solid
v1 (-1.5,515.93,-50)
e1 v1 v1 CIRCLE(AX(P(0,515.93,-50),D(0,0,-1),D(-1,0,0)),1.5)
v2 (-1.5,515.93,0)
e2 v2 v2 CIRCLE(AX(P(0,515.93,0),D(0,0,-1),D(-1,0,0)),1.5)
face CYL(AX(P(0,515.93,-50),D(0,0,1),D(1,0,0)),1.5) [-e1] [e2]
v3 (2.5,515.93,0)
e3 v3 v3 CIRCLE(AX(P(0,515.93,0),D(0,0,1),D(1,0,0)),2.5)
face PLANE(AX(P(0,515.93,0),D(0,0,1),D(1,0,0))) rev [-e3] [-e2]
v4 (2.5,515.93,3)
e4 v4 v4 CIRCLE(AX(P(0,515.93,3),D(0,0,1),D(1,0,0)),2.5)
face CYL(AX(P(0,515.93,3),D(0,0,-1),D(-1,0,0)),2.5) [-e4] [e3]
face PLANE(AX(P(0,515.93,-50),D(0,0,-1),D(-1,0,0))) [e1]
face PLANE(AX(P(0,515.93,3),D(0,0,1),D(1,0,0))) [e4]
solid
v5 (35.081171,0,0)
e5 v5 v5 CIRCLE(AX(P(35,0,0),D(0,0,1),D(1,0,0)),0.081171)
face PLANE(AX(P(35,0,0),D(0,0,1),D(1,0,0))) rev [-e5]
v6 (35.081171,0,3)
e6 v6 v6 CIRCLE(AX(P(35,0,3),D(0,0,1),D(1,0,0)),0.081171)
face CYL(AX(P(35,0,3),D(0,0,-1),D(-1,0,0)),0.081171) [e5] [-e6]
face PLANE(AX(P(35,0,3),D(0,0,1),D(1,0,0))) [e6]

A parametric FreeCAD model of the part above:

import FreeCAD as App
import Part
import Sketcher
from FreeCAD import Vector
Q = App.Units.Quantity

doc = App.newDocument("Part")
body = doc.addObject("PartDesign::Body", "Body")

# Sketch on XY plane
sketch1 = body.newObject("Sketcher::SketchObject", "Sketch")
sketch1.AttachmentSupport = (doc.getObject("XY_Plane"), [""])
sketch1.MapMode = "FlatFace"
sketch1.addGeometry(Part.Circle(Vector(35, 0, 0), Vector(0, 0, 1), 0.08), False)
sketch1.addConstraint([
    Sketcher.Constraint("PointOnObject", 0, 3, -1),
    Sketcher.Constraint("DistanceX", -1, 1, 0, 3, Q("35 mm")),
    Sketcher.Constraint("Diameter", 0, Q("0.162342 mm")),
])
pad1 = body.newObject("PartDesign::Pad", "Pad")
pad1.Profile = sketch1
pad1.Length = 3
body2 = doc.addObject("PartDesign::Body", "Body001")

# Sketch on XY plane
sketch2 = body2.newObject("Sketcher::SketchObject", "Sketch001")
sketch2.AttachmentSupport = (doc.getObject("XY_Plane001"), [""])
sketch2.MapMode = "FlatFace"
sketch2.addGeometry(Part.Circle(Vector(0, 515.9, 0), Vector(0, 0, 1), 2.5), False)
sketch2.addConstraint([
    Sketcher.Constraint("PointOnObject", 0, 3, -2),
    Sketcher.Constraint("Diameter", 0, Q("5 mm")),
    Sketcher.Constraint("DistanceY", -1, 1, 0, 3, Q("515.93 mm")),
])
pad2 = body2.newObject("PartDesign::Pad", "Pad001")
pad2.Profile = sketch2
pad2.Length = 3

# Sketch on XY plane
sketch3 = body2.newObject("Sketcher::SketchObject", "Sketch002")
sketch3.AttachmentSupport = (doc.getObject("XY_Plane001"), [""])
sketch3.MapMode = "FlatFace"
sketch3.addGeometry(Part.Circle(Vector(0, 515.9, 0), Vector(0, 0, 1), 1.5), False)
sketch3.addConstraint([
    Sketcher.Constraint("PointOnObject", 0, 3, -2),
    Sketcher.Constraint("Diameter", 0, Q("3 mm")),
    Sketcher.Constraint("DistanceY", -1, 1, 0, 3, Q("515.93 mm")),
])
pad3 = body2.newObject("PartDesign::Pad", "Pad002")
pad3.Profile = sketch3
pad3.Length = 50
pad3.Reversed = True

doc.recompute()
